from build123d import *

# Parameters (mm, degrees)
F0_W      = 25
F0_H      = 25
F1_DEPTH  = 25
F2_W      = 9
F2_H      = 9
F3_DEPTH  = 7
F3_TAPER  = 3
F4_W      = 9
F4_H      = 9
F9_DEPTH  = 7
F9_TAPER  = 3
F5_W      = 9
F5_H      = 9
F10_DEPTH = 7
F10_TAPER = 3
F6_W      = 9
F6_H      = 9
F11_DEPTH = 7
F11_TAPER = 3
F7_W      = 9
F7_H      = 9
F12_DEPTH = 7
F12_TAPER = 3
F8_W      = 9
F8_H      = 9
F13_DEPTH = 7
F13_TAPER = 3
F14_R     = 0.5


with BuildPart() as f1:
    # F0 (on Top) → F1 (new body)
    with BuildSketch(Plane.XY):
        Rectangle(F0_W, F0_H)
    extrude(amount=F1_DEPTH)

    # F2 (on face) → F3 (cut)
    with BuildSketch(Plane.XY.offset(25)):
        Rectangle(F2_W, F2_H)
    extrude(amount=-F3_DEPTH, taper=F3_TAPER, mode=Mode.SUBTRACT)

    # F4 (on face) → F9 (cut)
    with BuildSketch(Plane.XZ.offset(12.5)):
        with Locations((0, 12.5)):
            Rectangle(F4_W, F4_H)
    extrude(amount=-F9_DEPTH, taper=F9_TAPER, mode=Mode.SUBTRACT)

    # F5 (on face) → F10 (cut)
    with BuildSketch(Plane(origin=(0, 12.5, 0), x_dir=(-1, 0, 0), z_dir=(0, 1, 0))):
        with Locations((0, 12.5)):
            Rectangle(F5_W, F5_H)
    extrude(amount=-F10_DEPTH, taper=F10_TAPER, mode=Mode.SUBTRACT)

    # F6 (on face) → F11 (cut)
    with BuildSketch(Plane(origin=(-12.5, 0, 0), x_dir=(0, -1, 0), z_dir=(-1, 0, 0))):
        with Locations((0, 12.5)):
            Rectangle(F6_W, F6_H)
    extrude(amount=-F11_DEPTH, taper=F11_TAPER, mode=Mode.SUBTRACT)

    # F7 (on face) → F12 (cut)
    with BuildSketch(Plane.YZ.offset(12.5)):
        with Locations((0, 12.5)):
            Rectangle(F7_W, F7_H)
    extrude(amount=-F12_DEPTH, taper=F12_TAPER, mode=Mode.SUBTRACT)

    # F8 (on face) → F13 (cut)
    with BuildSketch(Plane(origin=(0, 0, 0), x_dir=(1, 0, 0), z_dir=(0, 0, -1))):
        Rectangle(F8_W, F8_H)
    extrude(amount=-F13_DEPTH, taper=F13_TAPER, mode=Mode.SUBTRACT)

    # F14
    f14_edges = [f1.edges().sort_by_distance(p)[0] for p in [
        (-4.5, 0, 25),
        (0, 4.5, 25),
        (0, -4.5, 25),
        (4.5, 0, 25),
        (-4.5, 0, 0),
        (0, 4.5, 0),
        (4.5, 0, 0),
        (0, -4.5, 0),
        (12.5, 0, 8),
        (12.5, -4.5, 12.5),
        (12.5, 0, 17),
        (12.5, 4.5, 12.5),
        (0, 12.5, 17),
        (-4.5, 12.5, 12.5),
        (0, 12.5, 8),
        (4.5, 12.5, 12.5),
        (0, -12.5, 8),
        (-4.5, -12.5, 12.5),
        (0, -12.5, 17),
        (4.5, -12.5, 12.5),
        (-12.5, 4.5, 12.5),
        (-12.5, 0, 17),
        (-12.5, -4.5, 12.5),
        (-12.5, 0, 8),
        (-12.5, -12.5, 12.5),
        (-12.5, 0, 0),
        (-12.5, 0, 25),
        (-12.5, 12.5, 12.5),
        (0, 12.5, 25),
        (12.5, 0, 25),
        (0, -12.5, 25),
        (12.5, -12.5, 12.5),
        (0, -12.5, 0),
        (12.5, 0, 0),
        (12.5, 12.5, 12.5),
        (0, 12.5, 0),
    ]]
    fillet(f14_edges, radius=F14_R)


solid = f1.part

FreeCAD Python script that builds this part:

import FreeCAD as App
import Part
import Sketcher

V = App.Vector
Q = App.Units.Quantity


def edges_at(feature, points):
    """Names of the edges that pass closest to the given points."""
    edges = feature.Shape.Edges
    near = lambda p: min(range(len(edges)), key=lambda i: edges[i].distToShape(Part.Vertex(*p))[0])
    return sorted({f"Edge{near(p) + 1}" for p in points})

doc = App.newDocument("Part")
body = doc.addObject("PartDesign::Body", "Body")

sketch1 = body.newObject("Sketcher::SketchObject", "Sketch")
sketch1.AttachmentSupport = (doc.getObject("XY_Plane"), [""])
sketch1.MapMode = "FlatFace"
sketch1.addGeometry([
    Part.LineSegment(V(-12.5, 12.5, 0), V(-12.5, -12.5, 0)),
    Part.LineSegment(V(-12.5, -12.5, 0), V(12.5, -12.5, 0)),
    Part.LineSegment(V(12.5, -12.5, 0), V(12.5, 12.5, 0)),
    Part.LineSegment(V(12.5, 12.5, 0), V(-12.5, 12.5, 0)),
], False)
sketch1.addConstraint([
    Sketcher.Constraint("Coincident", 0, 2, 1, 1),
    Sketcher.Constraint("Coincident", 1, 2, 2, 1),
    Sketcher.Constraint("Coincident", 2, 2, 3, 1),
    Sketcher.Constraint("Coincident", 3, 2, 0, 1),
    Sketcher.Constraint("Vertical", 0),
    Sketcher.Constraint("Horizontal", 1),
    Sketcher.Constraint("Vertical", 2),
    Sketcher.Constraint("Horizontal", 3),
    Sketcher.Constraint("Symmetric", 0, 2, 2, 2, -1, 1),
    Sketcher.Constraint("Equal", 3, 0),
    Sketcher.Constraint("DistanceX", 1, 1, 1, 2, Q("25 mm")),
])
pad1 = body.newObject("PartDesign::Pad", "Pad")
pad1.Profile = sketch1
pad1.Length = 25

sketch2 = body.newObject("Sketcher::SketchObject", "Sketch001")
sketch2.AttachmentSupport = (doc.getObject("XY_Plane"), [""])
sketch2.MapMode = "FlatFace"
sketch2.AttachmentOffset = App.Placement(V(0, 0, 25), App.Rotation())
sketch2.addGeometry([
    Part.LineSegment(V(-4.5, 4.5, 0), V(-4.5, -4.5, 0)),
    Part.LineSegment(V(-4.5, -4.5, 0), V(4.5, -4.5, 0)),
    Part.LineSegment(V(4.5, -4.5, 0), V(4.5, 4.5, 0)),
    Part.LineSegment(V(4.5, 4.5, 0), V(-4.5, 4.5, 0)),
], False)
sketch2.addConstraint([
    Sketcher.Constraint("Coincident", 0, 2, 1, 1),
    Sketcher.Constraint("Coincident", 1, 2, 2, 1),
    Sketcher.Constraint("Coincident", 2, 2, 3, 1),
    Sketcher.Constraint("Coincident", 3, 2, 0, 1),
    Sketcher.Constraint("Vertical", 0),
    Sketcher.Constraint("Horizontal", 1),
    Sketcher.Constraint("Vertical", 2),
    Sketcher.Constraint("Horizontal", 3),
    Sketcher.Constraint("Symmetric", 0, 2, 2, 2, -1, 1),
    Sketcher.Constraint("Equal", 3, 0),
    Sketcher.Constraint("DistanceX", 1, 1, 1, 2, Q("9 mm")),
])
pocket1 = body.newObject("PartDesign::Pocket", "Pocket")
pocket1.Profile = sketch2
pocket1.Length = 7
pocket1.TaperAngle = -3

sketch3 = body.newObject("Sketcher::SketchObject", "Sketch002")
sketch3.AttachmentSupport = (doc.getObject("XZ_Plane"), [""])
sketch3.MapMode = "FlatFace"
sketch3.AttachmentOffset = App.Placement(V(0, 0, 12.5), App.Rotation())
sketch3.addGeometry([
    Part.LineSegment(V(-4.5, 17, 0), V(-4.5, 8, 0)),
    Part.LineSegment(V(-4.5, 8, 0), V(4.5, 8, 0)),
    Part.LineSegment(V(4.5, 8, 0), V(4.5, 17, 0)),
    Part.LineSegment(V(4.5, 17, 0), V(-4.5, 17, 0)),
], False)
sketch3.addConstraint([
    Sketcher.Constraint("Coincident", 0, 2, 1, 1),
    Sketcher.Constraint("Coincident", 1, 2, 2, 1),
    Sketcher.Constraint("Coincident", 2, 2, 3, 1),
    Sketcher.Constraint("Coincident", 3, 2, 0, 1),
    Sketcher.Constraint("Vertical", 0),
    Sketcher.Constraint("Horizontal", 1),
    Sketcher.Constraint("Vertical", 2),
    Sketcher.Constraint("Horizontal", 3),
    Sketcher.Constraint("Equal", 3, 0),
    Sketcher.Constraint("DistanceX", 1, 1, 1, 2, Q("9 mm")),
    Sketcher.Constraint("DistanceY", -1, 1, 0, 2, Q("8 mm")),
    Sketcher.Constraint("DistanceX", 0, 2, -1, 1, Q("4.5 mm")),
])
pocket2 = body.newObject("PartDesign::Pocket", "Pocket001")
pocket2.Profile = sketch3
pocket2.Length = 7
pocket2.TaperAngle = -3

sketch4 = body.newObject("Sketcher::SketchObject", "Sketch003")
sketch4.AttachmentSupport = (doc.getObject("XZ_Plane"), [""])
sketch4.MapMode = "FlatFace"
sketch4.AttachmentOffset = App.Placement(V(0, 0, -12.5), App.Rotation())
sketch4.addGeometry([
    Part.LineSegment(V(4.5, 17, 0), V(4.5, 8, 0)),
    Part.LineSegment(V(4.5, 8, 0), V(-4.5, 8, 0)),
    Part.LineSegment(V(-4.5, 8, 0), V(-4.5, 17, 0)),
    Part.LineSegment(V(-4.5, 17, 0), V(4.5, 17, 0)),
], False)
sketch4.addConstraint([
    Sketcher.Constraint("Coincident", 0, 2, 1, 1),
    Sketcher.Constraint("Coincident", 1, 2, 2, 1),
    Sketcher.Constraint("Coincident", 2, 2, 3, 1),
    Sketcher.Constraint("Coincident", 3, 2, 0, 1),
    Sketcher.Constraint("Vertical", 0),
    Sketcher.Constraint("Horizontal", 1),
    Sketcher.Constraint("Vertical", 2),
    Sketcher.Constraint("Horizontal", 3),
    Sketcher.Constraint("Equal", 3, 0),
    Sketcher.Constraint("DistanceX", 1, 2, 1, 1, Q("9 mm")),
    Sketcher.Constraint("DistanceY", -1, 1, 0, 2, Q("8 mm")),
    Sketcher.Constraint("DistanceX", -1, 1, 0, 2, Q("4.5 mm")),
])
pocket3 = body.newObject("PartDesign::Pocket", "Pocket002")
pocket3.Profile = sketch4
pocket3.Length = 7
pocket3.Reversed = True
pocket3.TaperAngle = -3

sketch5 = body.newObject("Sketcher::SketchObject", "Sketch004")
sketch5.AttachmentSupport = (doc.getObject("YZ_Plane"), [""])
sketch5.MapMode = "FlatFace"
sketch5.AttachmentOffset = App.Placement(V(0, 0, -12.5), App.Rotation())
sketch5.addGeometry([
    Part.LineSegment(V(4.5, 17, 0), V(4.5, 8, 0)),
    Part.LineSegment(V(4.5, 8, 0), V(-4.5, 8, 0)),
    Part.LineSegment(V(-4.5, 8, 0), V(-4.5, 17, 0)),
    Part.LineSegment(V(-4.5, 17, 0), V(4.5, 17, 0)),
], False)
sketch5.addConstraint([
    Sketcher.Constraint("Coincident", 0, 2, 1, 1),
    Sketcher.Constraint("Coincident", 1, 2, 2, 1),
    Sketcher.Constraint("Coincident", 2, 2, 3, 1),
    Sketcher.Constraint("Coincident", 3, 2, 0, 1),
    Sketcher.Constraint("Vertical", 0),
    Sketcher.Constraint("Horizontal", 1),
    Sketcher.Constraint("Vertical", 2),
    Sketcher.Constraint("Horizontal", 3),
    Sketcher.Constraint("Equal", 3, 0),
    Sketcher.Constraint("DistanceX", 1, 2, 1, 1, Q("9 mm")),
    Sketcher.Constraint("DistanceY", -1, 1, 0, 2, Q("8 mm")),
    Sketcher.Constraint("DistanceX", -1, 1, 0, 2, Q("4.5 mm")),
])
pocket4 = body.newObject("PartDesign::Pocket", "Pocket003")
pocket4.Profile = sketch5
pocket4.Length = 7
pocket4.Reversed = True
pocket4.TaperAngle = -3

sketch6 = body.newObject("Sketcher::SketchObject", "Sketch005")
sketch6.AttachmentSupport = (doc.getObject("YZ_Plane"), [""])
sketch6.MapMode = "FlatFace"
sketch6.AttachmentOffset = App.Placement(V(0, 0, 12.5), App.Rotation())
sketch6.addGeometry([
    Part.LineSegment(V(-4.5, 17, 0), V(-4.5, 8, 0)),
    Part.LineSegment(V(-4.5, 8, 0), V(4.5, 8, 0)),
    Part.LineSegment(V(4.5, 8, 0), V(4.5, 17, 0)),
    Part.LineSegment(V(4.5, 17, 0), V(-4.5, 17, 0)),
], False)
sketch6.addConstraint([
    Sketcher.Constraint("Coincident", 0, 2, 1, 1),
    Sketcher.Constraint("Coincident", 1, 2, 2, 1),
    Sketcher.Constraint("Coincident", 2, 2, 3, 1),
    Sketcher.Constraint("Coincident", 3, 2, 0, 1),
    Sketcher.Constraint("Vertical", 0),
    Sketcher.Constraint("Horizontal", 1),
    Sketcher.Constraint("Vertical", 2),
    Sketcher.Constraint("Horizontal", 3),
    Sketcher.Constraint("Equal", 3, 0),
    Sketcher.Constraint("DistanceX", 1, 1, 1, 2, Q("9 mm")),
    Sketcher.Constraint("DistanceY", -1, 1, 0, 2, Q("8 mm")),
    Sketcher.Constraint("DistanceX", 0, 2, -1, 1, Q("4.5 mm")),
])
pocket5 = body.newObject("PartDesign::Pocket", "Pocket004")
pocket5.Profile = sketch6
pocket5.Length = 7
pocket5.TaperAngle = -3

sketch7 = body.newObject("Sketcher::SketchObject", "Sketch006")
sketch7.AttachmentSupport = (doc.getObject("XY_Plane"), [""])
sketch7.MapMode = "FlatFace"
sketch7.addGeometry([
    Part.LineSegment(V(-4.5, -4.5, 0), V(-4.5, 4.5, 0)),
    Part.LineSegment(V(-4.5, 4.5, 0), V(4.5, 4.5, 0)),
    Part.LineSegment(V(4.5, 4.5, 0), V(4.5, -4.5, 0)),
    Part.LineSegment(V(4.5, -4.5, 0), V(-4.5, -4.5, 0)),
], False)
sketch7.addConstraint([
    Sketcher.Constraint("Coincident", 0, 2, 1, 1),
    Sketcher.Constraint("Coincident", 1, 2, 2, 1),
    Sketcher.Constraint("Coincident", 2, 2, 3, 1),
    Sketcher.Constraint("Coincident", 3, 2, 0, 1),
    Sketcher.Constraint("Vertical", 0),
    Sketcher.Constraint("Horizontal", 1),
    Sketcher.Constraint("Vertical", 2),
    Sketcher.Constraint("Horizontal", 3),
    Sketcher.Constraint("Symmetric", 0, 2, 2, 2, -1, 1),
    Sketcher.Constraint("Equal", 3, 0),
    Sketcher.Constraint("DistanceX", 1, 1, 1, 2, Q("9 mm")),
])
pocket6 = body.newObject("PartDesign::Pocket", "Pocket005")
pocket6.Profile = sketch7
pocket6.Length = 7
pocket6.Reversed = True
pocket6.TaperAngle = -3
doc.recompute()

fillet = body.newObject("PartDesign::Fillet", "Fillet")
fillet.Base = (pocket6, edges_at(pocket6, [
    (-4.5, 0, 25),
    (0, 4.5, 25),
    (0, -4.5, 25),
    (4.5, 0, 25),
    (-4.5, 0, 0),
    (0, 4.5, 0),
    (4.5, 0, 0),
    (0, -4.5, 0),
    (12.5, 0, 8),
    (12.5, -4.5, 12.5),
    (12.5, 0, 17),
    (12.5, 4.5, 12.5),
    (0, 12.5, 17),
    (-4.5, 12.5, 12.5),
    (0, 12.5, 8),
    (4.5, 12.5, 12.5),
    (0, -12.5, 8),
    (-4.5, -12.5, 12.5),
    (0, -12.5, 17),
    (4.5, -12.5, 12.5),
    (-12.5, 4.5, 12.5),
    (-12.5, 0, 17),
    (-12.5, -4.5, 12.5),
    (-12.5, 0, 8),
    (-12.5, -12.5, 12.5),
    (-12.5, 0, 0),
    (-12.5, 0, 25),
    (-12.5, 12.5, 12.5),
    (0, 12.5, 25),
    (12.5, 0, 25),
    (0, -12.5, 25),
    (12.5, -12.5, 12.5),
    (0, -12.5, 0),
    (12.5, 0, 0),
    (12.5, 12.5, 12.5),
    (0, 12.5, 0),
]))
fillet.Radius = 0.5

doc.recompute()
